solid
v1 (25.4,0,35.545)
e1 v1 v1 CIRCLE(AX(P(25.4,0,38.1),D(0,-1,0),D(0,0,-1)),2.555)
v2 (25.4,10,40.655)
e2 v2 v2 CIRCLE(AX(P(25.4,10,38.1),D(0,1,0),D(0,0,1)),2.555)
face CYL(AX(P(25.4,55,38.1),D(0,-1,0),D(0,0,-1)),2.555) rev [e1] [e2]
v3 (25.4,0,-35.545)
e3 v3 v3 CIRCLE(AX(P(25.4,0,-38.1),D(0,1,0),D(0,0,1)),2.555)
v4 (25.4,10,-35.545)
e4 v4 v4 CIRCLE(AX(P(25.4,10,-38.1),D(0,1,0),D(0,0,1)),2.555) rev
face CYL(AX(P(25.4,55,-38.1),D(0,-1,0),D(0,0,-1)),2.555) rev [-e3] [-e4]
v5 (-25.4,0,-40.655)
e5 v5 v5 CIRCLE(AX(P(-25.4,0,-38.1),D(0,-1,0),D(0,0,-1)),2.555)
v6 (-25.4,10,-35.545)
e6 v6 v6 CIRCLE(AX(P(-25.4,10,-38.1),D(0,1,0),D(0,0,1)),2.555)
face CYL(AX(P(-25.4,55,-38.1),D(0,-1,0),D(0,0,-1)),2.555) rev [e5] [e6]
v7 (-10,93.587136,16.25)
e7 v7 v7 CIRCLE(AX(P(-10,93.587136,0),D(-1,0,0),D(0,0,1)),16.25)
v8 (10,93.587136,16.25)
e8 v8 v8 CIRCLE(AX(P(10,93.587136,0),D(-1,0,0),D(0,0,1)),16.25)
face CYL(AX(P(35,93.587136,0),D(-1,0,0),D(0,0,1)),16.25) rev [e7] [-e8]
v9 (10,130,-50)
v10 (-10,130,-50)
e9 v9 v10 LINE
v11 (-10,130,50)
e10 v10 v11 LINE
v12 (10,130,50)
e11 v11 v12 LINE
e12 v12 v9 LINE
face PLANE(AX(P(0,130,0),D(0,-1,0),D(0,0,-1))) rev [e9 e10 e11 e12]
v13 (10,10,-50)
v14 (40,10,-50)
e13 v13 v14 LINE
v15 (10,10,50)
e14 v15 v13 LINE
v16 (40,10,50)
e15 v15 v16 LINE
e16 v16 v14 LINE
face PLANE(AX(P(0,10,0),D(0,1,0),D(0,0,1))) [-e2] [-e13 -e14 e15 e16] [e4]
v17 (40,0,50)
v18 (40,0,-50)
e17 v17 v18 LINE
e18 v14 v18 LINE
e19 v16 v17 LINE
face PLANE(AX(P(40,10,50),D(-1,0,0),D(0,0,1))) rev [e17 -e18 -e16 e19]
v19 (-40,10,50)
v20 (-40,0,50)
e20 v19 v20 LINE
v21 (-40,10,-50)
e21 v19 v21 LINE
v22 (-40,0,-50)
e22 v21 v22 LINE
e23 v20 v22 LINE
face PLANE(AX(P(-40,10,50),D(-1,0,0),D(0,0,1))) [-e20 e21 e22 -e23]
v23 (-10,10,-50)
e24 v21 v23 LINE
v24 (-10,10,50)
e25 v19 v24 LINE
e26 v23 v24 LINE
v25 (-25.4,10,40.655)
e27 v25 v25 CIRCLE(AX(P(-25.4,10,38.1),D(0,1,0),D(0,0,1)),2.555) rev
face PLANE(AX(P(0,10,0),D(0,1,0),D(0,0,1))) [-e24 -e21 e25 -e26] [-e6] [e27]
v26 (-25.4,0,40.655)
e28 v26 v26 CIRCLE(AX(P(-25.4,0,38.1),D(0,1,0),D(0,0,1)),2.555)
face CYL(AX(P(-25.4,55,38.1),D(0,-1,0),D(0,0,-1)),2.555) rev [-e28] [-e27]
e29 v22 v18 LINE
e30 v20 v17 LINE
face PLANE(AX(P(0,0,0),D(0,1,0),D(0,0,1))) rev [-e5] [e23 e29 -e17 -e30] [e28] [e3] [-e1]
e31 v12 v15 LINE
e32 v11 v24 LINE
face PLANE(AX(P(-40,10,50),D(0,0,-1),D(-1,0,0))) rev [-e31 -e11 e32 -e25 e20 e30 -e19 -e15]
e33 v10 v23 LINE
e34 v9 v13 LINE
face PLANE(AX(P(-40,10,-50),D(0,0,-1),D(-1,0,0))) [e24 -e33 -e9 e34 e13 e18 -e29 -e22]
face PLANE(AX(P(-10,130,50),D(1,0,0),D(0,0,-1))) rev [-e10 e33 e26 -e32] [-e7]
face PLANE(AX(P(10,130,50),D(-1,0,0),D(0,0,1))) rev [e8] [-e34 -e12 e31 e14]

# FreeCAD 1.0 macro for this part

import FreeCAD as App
import Part
import Sketcher
from FreeCAD import Vector
Q = App.Units.Quantity


def add_polygon(sketch, points):
    """Adds a closed chain of lines whose ends are joined by coincident constraints."""
    first, n = sketch.GeometryCount, len(points)
    for a, b in zip(points, points[1:] + points[:1]):
        sketch.addGeometry(Part.LineSegment(App.Vector(*a, 0), App.Vector(*b, 0)), False)
    for i in range(n):
        sketch.addConstraint(Sketcher.Constraint("Coincident", first + i, 2, first + (i + 1) % n, 1))

doc = App.newDocument("Part")
params = doc.addObject("Spreadsheet::Sheet", "Params")
for row, (alias, value) in enumerate([
    ("sketch1_width", "80 mm"),
    ("sketch1_height", "100 mm"),
    ("pad1_length", "10 mm"),
    ("sketch2_width", "20 mm"),
    ("sketch2_height", "100 mm"),
    ("pad2_length", "120 mm"),
    ("sketch3_diameter", "5.11 mm"),
    ("pocket1_length", "55 mm"),
    ("sketch4_diameter", "32.5 mm"),
    ("pocket2_length", "45 mm"),
], start=1):
    params.set(f"A{row}", alias)
    params.set(f"B{row}", "=" + value)
    params.setAlias(f"B{row}", alias)

body = doc.addObject("PartDesign::Body", "Body")

sketch1 = body.newObject("Sketcher::SketchObject", "Sketch")
sketch1.AttachmentSupport = (doc.getObject("XZ_Plane"), [""])
sketch1.MapMode = "FlatFace"
add_polygon(sketch1, [(-40, -50), (-40, 50), (40, 50), (40, -50)])
sketch1.addConstraint([
    Sketcher.Constraint("Vertical", 0),
    Sketcher.Constraint("Horizontal", 1),
    Sketcher.Constraint("Vertical", 2),
    Sketcher.Constraint("Horizontal", 3),
    Sketcher.Constraint("Symmetric", 0, 2, 2, 2, -1, 1),
    Sketcher.Constraint("DistanceX", 1, 1, 1, 2, Q("80 mm")),
    Sketcher.Constraint("DistanceY", 0, 1, 0, 2, Q("100 mm")),
])
sketch1.setExpression("Constraints[9]", "Params.sketch1_width")
sketch1.setExpression("Constraints[10]", "Params.sketch1_height")
pad1 = body.newObject("PartDesign::Pad", "Pad")
pad1.Profile = sketch1
pad1.setExpression("Length", "Params.pad1_length")
pad1.Reversed = True

sketch2 = body.newObject("Sketcher::SketchObject", "Sketch001")
sketch2.AttachmentSupport = (doc.getObject("XZ_Plane"), [""])
sketch2.MapMode = "FlatFace"
sketch2.AttachmentOffset = App.Placement(Vector(0, 0, -10), App.Rotation())
add_polygon(sketch2, [(-10, -50), (-10, 50), (10, 50), (10, -50)])
sketch2.addConstraint([
    Sketcher.Constraint("Vertical", 0),
    Sketcher.Constraint("Horizontal", 1),
    Sketcher.Constraint("Vertical", 2),
    Sketcher.Constraint("Horizontal", 3),
    Sketcher.Constraint("Symmetric", 0, 2, 2, 2, -1, 1),
    Sketcher.Constraint("DistanceX", 1, 1, 1, 2, Q("20 mm")),
    Sketcher.Constraint("DistanceY", 0, 1, 0, 2, Q("100 mm")),
])
sketch2.setExpression("Constraints[9]", "Params.sketch2_width")
sketch2.setExpression("Constraints[10]", "Params.sketch2_height")
pad2 = body.newObject("PartDesign::Pad", "Pad001")
pad2.Profile = sketch2
pad2.setExpression("Length", "Params.pad2_length")
pad2.Reversed = True

sketch3 = body.newObject("Sketcher::SketchObject", "Sketch002")
sketch3.AttachmentSupport = (doc.getObject("XZ_Plane"), [""])
sketch3.MapMode = "FlatFace"
sketch3.addGeometry([
    Part.Circle(Vector(-25.4, -38.1, 0), Vector(0, 0, 1), 2.6),
    Part.Circle(Vector(25.4, -38.1, 0), Vector(0, 0, 1), 2.6),
    Part.Circle(Vector(-25.4, 38.1, 0), Vector(0, 0, 1), 2.6),
    Part.Circle(Vector(25.4, 38.1, 0), Vector(0, 0, 1), 2.6),
], False)
sketch3.addConstraint([
    Sketcher.Constraint("Equal", 0, 1),
    Sketcher.Constraint("Equal", 1, 2),
    Sketcher.Constraint("Equal", 2, 3),
    Sketcher.Constraint("Symmetric", 1, 3, 2, 3, -1, 1),
    Sketcher.Constraint("Symmetric", 0, 3, 3, 3, -1, 1),
    Sketcher.Constraint("Symmetric", 0, 3, 1, 3, -2),
    Sketcher.Constraint("Diameter", 0, Q("5.11 mm")),
    Sketcher.Constraint("DistanceX", 0, 3, -1, 1, Q("25.4 mm")),
    Sketcher.Constraint("DistanceY", 0, 3, -1, 1, Q("38.1 mm")),
])
sketch3.setExpression("Constraints[6]", "Params.sketch3_diameter")
pocket1 = body.newObject("PartDesign::Pocket", "Pocket")
pocket1.Profile = sketch3
pocket1.setExpression("Length", "Params.pocket1_length")

sketch4 = body.newObject("Sketcher::SketchObject", "Sketch003")
sketch4.AttachmentSupport = (doc.getObject("YZ_Plane"), [""])
sketch4.MapMode = "FlatFace"
sketch4.AttachmentOffset = App.Placement(Vector(0, 0, -10), App.Rotation())
sketch4.addGeometry(Part.Circle(Vector(94, 0, 0), Vector(0, 0, 1), 16), False)
sketch4.addConstraint([
    Sketcher.Constraint("PointOnObject", 0, 3, -1),
    Sketcher.Constraint("Diameter", 0, Q("32.5 mm")),
    Sketcher.Constraint("DistanceX", -1, 1, 0, 3, Q("93.587136 mm")),
])
sketch4.setExpression("Constraints[1]", "Params.sketch4_diameter")
pocket2 = body.newObject("PartDesign::Pocket", "Pocket001")
pocket2.Profile = sketch4
pocket2.setExpression("Length", "Params.pocket2_length")
pocket2.Reversed = True

doc.recompute()
